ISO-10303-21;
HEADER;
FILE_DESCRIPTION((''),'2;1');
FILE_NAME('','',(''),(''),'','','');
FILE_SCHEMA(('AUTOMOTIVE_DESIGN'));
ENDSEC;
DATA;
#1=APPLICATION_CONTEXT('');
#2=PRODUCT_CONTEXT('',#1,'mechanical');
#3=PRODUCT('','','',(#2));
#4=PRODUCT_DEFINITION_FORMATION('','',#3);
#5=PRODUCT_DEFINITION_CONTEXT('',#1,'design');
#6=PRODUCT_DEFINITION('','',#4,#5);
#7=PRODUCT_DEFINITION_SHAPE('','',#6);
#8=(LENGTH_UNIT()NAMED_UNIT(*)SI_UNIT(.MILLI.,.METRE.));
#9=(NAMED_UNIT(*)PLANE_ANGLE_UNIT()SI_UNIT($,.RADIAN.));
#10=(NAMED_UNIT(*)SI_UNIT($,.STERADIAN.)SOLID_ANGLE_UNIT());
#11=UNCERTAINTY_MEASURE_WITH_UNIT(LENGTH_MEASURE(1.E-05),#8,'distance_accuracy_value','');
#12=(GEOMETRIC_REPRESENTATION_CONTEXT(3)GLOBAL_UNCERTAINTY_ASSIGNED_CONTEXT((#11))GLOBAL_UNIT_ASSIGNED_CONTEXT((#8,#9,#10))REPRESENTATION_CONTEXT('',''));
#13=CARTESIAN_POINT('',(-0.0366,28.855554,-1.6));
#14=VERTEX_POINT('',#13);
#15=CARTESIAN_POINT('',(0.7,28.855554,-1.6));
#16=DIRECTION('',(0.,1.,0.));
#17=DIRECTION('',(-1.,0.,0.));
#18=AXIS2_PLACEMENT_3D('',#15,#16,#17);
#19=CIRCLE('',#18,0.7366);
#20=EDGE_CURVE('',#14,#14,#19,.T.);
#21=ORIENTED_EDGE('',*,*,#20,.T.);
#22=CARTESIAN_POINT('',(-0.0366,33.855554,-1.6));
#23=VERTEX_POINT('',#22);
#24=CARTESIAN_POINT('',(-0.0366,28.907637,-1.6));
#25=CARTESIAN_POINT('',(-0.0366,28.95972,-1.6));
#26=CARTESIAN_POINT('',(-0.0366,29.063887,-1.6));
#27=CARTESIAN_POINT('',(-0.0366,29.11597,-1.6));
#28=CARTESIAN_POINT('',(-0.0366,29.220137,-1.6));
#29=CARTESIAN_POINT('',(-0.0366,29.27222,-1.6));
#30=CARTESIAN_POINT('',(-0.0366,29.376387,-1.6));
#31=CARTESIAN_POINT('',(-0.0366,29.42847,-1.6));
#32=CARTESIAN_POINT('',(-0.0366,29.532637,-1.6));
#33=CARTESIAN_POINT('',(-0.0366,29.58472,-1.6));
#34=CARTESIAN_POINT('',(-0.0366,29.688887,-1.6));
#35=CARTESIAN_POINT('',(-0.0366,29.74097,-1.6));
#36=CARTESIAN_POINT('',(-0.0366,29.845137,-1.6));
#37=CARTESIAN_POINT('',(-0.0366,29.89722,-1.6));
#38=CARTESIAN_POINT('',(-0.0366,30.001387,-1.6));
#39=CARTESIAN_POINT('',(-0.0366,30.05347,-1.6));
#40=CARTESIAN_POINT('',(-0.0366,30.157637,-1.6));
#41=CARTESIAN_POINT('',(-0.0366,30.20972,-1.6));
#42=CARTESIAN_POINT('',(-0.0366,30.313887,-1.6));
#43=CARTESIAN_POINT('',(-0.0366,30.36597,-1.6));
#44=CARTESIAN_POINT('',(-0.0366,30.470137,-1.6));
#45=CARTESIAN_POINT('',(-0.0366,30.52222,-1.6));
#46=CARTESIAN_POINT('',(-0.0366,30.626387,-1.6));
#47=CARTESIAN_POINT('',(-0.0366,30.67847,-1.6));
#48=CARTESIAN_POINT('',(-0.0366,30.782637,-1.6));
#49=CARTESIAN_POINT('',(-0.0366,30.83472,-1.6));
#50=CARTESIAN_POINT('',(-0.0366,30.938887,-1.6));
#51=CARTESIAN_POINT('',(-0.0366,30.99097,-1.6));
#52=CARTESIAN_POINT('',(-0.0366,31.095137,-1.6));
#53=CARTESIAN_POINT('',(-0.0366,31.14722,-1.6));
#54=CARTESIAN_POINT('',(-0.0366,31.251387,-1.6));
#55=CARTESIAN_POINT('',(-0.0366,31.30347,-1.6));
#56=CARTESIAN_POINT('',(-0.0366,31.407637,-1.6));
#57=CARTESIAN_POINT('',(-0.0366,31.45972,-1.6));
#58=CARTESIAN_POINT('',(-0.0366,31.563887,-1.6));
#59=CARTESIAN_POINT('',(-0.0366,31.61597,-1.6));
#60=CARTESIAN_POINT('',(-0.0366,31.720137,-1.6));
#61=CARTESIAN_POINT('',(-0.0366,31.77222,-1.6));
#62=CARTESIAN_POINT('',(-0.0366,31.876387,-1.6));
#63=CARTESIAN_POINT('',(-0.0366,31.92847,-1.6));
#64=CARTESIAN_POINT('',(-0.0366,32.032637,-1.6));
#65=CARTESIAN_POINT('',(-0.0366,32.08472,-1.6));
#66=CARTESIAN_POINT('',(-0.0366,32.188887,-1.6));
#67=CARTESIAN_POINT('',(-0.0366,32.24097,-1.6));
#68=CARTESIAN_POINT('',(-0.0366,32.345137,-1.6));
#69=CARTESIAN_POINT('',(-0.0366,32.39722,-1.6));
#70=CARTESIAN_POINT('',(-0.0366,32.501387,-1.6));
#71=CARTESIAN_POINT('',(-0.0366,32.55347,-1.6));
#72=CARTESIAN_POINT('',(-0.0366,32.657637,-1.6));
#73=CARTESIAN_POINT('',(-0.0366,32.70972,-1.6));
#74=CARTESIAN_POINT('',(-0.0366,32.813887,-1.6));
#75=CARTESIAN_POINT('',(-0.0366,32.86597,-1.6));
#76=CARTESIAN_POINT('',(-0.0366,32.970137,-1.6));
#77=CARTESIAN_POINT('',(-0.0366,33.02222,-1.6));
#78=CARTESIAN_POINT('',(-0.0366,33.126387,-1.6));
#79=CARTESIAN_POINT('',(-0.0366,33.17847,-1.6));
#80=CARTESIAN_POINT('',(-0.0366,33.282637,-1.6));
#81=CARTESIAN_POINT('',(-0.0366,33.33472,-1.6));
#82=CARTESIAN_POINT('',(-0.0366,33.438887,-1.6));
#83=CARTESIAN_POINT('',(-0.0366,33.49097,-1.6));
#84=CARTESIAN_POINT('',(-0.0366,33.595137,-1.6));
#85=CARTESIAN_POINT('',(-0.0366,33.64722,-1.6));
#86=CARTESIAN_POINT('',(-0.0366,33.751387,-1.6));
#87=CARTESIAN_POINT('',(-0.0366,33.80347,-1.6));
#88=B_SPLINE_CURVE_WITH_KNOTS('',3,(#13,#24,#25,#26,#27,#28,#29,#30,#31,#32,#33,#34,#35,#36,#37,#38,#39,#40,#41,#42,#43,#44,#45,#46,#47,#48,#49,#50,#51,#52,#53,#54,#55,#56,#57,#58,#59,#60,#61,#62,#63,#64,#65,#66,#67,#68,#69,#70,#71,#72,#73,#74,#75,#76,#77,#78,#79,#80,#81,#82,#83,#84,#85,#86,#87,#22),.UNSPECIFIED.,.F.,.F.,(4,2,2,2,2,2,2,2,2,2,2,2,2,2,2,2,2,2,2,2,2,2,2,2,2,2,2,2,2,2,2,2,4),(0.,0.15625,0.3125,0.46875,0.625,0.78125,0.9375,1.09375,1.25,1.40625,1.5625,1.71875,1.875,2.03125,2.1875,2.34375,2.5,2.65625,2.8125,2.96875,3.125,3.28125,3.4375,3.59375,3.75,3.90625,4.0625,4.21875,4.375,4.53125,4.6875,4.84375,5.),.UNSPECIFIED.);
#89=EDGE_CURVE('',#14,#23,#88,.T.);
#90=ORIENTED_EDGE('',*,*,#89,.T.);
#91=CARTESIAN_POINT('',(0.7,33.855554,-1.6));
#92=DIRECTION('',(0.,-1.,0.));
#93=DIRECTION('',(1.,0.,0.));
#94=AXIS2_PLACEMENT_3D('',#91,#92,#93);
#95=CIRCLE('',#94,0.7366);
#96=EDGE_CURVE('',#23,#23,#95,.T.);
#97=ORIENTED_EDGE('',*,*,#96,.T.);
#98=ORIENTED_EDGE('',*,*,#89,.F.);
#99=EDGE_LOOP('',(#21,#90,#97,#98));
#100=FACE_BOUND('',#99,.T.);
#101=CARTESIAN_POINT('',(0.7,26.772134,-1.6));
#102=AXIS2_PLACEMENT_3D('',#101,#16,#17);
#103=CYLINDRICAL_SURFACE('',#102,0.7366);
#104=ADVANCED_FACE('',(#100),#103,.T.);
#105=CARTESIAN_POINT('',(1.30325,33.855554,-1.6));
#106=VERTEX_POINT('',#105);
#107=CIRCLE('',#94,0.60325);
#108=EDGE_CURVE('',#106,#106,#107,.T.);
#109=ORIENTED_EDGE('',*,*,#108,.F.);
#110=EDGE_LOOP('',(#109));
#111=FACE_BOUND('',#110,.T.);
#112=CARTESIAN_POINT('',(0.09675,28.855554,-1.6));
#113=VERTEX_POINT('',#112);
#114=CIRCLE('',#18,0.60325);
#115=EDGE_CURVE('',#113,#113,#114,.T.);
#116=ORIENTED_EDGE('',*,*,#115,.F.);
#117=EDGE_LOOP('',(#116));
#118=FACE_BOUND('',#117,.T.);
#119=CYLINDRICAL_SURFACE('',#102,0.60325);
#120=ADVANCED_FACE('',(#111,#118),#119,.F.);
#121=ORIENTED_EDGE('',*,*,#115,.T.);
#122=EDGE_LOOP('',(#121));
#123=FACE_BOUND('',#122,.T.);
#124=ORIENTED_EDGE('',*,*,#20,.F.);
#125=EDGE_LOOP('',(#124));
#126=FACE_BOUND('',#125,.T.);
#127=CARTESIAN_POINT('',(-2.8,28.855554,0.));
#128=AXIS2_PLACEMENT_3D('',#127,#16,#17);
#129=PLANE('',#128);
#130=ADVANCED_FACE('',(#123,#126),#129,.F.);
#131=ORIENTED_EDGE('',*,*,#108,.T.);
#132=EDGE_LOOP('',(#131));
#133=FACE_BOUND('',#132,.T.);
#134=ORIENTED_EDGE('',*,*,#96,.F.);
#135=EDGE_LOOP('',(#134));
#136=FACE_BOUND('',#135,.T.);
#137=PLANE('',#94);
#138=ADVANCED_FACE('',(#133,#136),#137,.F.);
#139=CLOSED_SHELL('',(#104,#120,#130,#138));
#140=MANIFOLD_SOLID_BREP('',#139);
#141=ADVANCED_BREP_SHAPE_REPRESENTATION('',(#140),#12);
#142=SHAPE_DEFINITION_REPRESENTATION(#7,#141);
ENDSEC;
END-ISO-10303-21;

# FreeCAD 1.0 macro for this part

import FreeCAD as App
import Part
import Sketcher
from FreeCAD import Vector

doc = App.newDocument("Part")
body = doc.addObject("PartDesign::Body", "Body")

sketch1 = body.newObject("Sketcher::SketchObject", "Sketch")
sketch1.AttachmentSupport = (doc.getObject("XZ_Plane"), [""])
sketch1.MapMode = "FlatFace"
sketch1.AttachmentOffset = App.Placement(Vector(0, 0, -33.855554), App.Rotation())
sketch1.addGeometry(Part.Circle(Vector(0.7, -1.6, 0), Vector(0, 0, 1), 0.7366), False)
sketch1.addGeometry(Part.Circle(Vector(0.7, -1.6, 0), Vector(0, 0, 1), 0.60325), False)
sketch1.addConstraint(Sketcher.Constraint("Coincident", 1, 3, 0, 3))
sketch1.addConstraint(Sketcher.Constraint("Diameter", 0, 1.4732))
sketch1.addConstraint(Sketcher.Constraint("Diameter", 1, 1.2065))
sketch1.addConstraint(Sketcher.Constraint("DistanceX", -1, 1, 0, 3, 0.7))
sketch1.addConstraint(Sketcher.Constraint("DistanceY", 0, 3, -1, 1, 1.6))
pad1 = body.newObject("PartDesign::Pad", "Pad")
pad1.Profile = sketch1
pad1.Length = 5

doc.recompute()
